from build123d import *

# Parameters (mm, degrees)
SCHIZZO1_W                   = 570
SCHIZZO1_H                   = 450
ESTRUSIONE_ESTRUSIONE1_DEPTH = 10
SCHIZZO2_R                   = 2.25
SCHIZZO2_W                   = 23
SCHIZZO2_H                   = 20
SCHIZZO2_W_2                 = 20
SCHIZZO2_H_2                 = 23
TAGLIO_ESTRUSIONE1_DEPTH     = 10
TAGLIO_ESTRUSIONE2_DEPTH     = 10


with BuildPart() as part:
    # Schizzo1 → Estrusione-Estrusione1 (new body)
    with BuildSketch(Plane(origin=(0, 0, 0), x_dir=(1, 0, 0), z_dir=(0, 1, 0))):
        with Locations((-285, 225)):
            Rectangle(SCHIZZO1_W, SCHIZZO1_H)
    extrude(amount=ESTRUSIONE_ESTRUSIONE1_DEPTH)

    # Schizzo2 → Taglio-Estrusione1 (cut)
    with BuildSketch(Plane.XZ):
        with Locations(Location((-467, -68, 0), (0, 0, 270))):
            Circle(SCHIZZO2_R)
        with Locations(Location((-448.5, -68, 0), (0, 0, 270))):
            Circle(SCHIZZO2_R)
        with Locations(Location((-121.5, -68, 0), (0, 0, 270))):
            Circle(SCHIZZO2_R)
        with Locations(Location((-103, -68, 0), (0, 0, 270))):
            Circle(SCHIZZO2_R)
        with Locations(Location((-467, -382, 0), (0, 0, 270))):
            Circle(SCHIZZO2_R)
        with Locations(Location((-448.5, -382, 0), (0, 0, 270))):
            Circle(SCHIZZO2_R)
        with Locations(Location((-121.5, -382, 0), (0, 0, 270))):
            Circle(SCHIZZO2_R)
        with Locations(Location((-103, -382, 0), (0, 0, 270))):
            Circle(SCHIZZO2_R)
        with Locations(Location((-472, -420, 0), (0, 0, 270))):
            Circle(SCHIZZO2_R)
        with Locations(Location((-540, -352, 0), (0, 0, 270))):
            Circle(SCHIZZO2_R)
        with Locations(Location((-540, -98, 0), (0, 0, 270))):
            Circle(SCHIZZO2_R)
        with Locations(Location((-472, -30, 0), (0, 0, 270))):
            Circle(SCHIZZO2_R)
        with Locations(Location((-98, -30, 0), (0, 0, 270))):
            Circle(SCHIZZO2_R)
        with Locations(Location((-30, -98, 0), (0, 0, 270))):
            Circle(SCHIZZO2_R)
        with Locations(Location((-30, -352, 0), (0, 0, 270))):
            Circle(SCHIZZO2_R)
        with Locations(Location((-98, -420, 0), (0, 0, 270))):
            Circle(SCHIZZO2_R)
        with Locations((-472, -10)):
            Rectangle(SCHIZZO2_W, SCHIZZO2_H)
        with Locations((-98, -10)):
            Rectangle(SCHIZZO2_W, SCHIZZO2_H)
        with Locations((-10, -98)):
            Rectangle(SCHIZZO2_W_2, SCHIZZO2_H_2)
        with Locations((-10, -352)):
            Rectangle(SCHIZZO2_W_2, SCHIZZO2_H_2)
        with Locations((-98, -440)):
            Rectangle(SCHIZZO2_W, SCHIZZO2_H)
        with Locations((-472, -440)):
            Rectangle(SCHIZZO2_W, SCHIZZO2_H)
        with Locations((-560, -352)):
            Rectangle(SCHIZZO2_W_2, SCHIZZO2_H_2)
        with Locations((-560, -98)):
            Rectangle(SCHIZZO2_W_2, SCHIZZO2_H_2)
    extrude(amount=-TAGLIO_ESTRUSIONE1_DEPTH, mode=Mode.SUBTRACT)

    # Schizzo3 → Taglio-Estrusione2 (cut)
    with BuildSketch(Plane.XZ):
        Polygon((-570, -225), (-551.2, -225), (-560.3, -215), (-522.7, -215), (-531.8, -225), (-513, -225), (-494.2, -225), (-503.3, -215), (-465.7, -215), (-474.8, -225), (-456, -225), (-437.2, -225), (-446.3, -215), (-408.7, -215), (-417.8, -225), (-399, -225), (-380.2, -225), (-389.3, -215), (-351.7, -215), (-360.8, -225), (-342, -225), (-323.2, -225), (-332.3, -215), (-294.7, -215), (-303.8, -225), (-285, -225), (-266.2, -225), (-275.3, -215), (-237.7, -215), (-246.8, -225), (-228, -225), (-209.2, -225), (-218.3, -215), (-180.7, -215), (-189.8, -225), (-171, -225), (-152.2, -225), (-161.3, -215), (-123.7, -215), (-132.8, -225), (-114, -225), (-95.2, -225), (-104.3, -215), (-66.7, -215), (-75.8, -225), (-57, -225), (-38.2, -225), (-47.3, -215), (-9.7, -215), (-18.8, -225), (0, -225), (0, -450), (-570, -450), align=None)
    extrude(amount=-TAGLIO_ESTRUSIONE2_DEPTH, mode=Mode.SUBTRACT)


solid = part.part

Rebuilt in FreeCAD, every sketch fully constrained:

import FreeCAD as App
import Part
import Sketcher

doc = App.newDocument("Part")
body = doc.addObject("PartDesign::Body", "Body")

sketch1 = doc.addObject("Sketcher::SketchObject", "Sketch")
body.addObject(sketch1)
sketch1.AttachmentSupport = (doc.XZ_Plane, [""])
sketch1.MapMode = "FlatFace"
sketch1.addGeometry([
    Part.LineSegment(App.Vector(-570, -450, 0), App.Vector(-570, 0, 0)),
    Part.LineSegment(App.Vector(-570, 0, 0), App.Vector(0, 0, 0)),
    Part.LineSegment(App.Vector(0, 0, 0), App.Vector(0, -450, 0)),
    Part.LineSegment(App.Vector(0, -450, 0), App.Vector(-570, -450, 0)),
], False)
sketch1.addConstraint([
    Sketcher.Constraint("Coincident", 0, 2, 1, 1),
    Sketcher.Constraint("Coincident", 1, 2, 2, 1),
    Sketcher.Constraint("Coincident", 2, 2, 3, 1),
    Sketcher.Constraint("Coincident", 3, 2, 0, 1),
    Sketcher.Constraint("Vertical", 0),
    Sketcher.Constraint("Horizontal", 1),
    Sketcher.Constraint("Vertical", 2),
    Sketcher.Constraint("Horizontal", 3),
    Sketcher.Constraint("Coincident", 1, 2, -1, 1),
    Sketcher.Constraint("DistanceX", 1, 1, 1, 2, 570.0),
    Sketcher.Constraint("DistanceY", 0, 1, 0, 2, 450.0),
])
pad1 = doc.addObject("PartDesign::Pad", "Pad")
body.addObject(pad1)
pad1.Profile = sketch1
pad1.Length = 10
pad1.Reversed = True

sketch2 = doc.addObject("Sketcher::SketchObject", "Sketch001")
body.addObject(sketch2)
sketch2.AttachmentSupport = (doc.XZ_Plane, [""])
sketch2.MapMode = "FlatFace"
sketch2.addGeometry([
    Part.Circle(App.Vector(-467, -68, 0), App.Vector(0, 0, 1), 2.25),
    Part.Circle(App.Vector(-448.5, -68, 0), App.Vector(0, 0, 1), 2.25),
    Part.Circle(App.Vector(-121.5, -68, 0), App.Vector(0, 0, 1), 2.25),
    Part.Circle(App.Vector(-103, -68, 0), App.Vector(0, 0, 1), 2.25),
    Part.Circle(App.Vector(-467, -382, 0), App.Vector(0, 0, 1), 2.25),
    Part.Circle(App.Vector(-448.5, -382, 0), App.Vector(0, 0, 1), 2.25),
    Part.Circle(App.Vector(-121.5, -382, 0), App.Vector(0, 0, 1), 2.25),
    Part.Circle(App.Vector(-103, -382, 0), App.Vector(0, 0, 1), 2.25),
    Part.Circle(App.Vector(-472, -420, 0), App.Vector(0, 0, 1), 2.25),
    Part.Circle(App.Vector(-540, -352, 0), App.Vector(0, 0, 1), 2.25),
    Part.Circle(App.Vector(-540, -98, 0), App.Vector(0, 0, 1), 2.25),
    Part.Circle(App.Vector(-472, -30, 0), App.Vector(0, 0, 1), 2.25),
    Part.Circle(App.Vector(-98, -30, 0), App.Vector(0, 0, 1), 2.25),
    Part.Circle(App.Vector(-30, -98, 0), App.Vector(0, 0, 1), 2.25),
    Part.Circle(App.Vector(-30, -352, 0), App.Vector(0, 0, 1), 2.25),
    Part.Circle(App.Vector(-98, -420, 0), App.Vector(0, 0, 1), 2.25),
    Part.LineSegment(App.Vector(-483.5, 0, 0), App.Vector(-483.5, -20, 0)),
    Part.LineSegment(App.Vector(-483.5, -20, 0), App.Vector(-460.5, -20, 0)),
    Part.LineSegment(App.Vector(-460.5, -20, 0), App.Vector(-460.5, 0, 0)),
    Part.LineSegment(App.Vector(-460.5, 0, 0), App.Vector(-483.5, 0, 0)),
    Part.LineSegment(App.Vector(-109.5, 0, 0), App.Vector(-109.5, -20, 0)),
    Part.LineSegment(App.Vector(-109.5, -20, 0), App.Vector(-86.5, -20, 0)),
    Part.LineSegment(App.Vector(-86.5, -20, 0), App.Vector(-86.5, 0, 0)),
    Part.LineSegment(App.Vector(-86.5, 0, 0), App.Vector(-109.5, 0, 0)),
    Part.LineSegment(App.Vector(-20, -86.5, 0), App.Vector(-20, -109.5, 0)),
    Part.LineSegment(App.Vector(-20, -109.5, 0), App.Vector(0, -109.5, 0)),
    Part.LineSegment(App.Vector(0, -109.5, 0), App.Vector(0, -86.5, 0)),
    Part.LineSegment(App.Vector(0, -86.5, 0), App.Vector(-20, -86.5, 0)),
    Part.LineSegment(App.Vector(-20, -340.5, 0), App.Vector(-20, -363.5, 0)),
    Part.LineSegment(App.Vector(-20, -363.5, 0), App.Vector(0, -363.5, 0)),
    Part.LineSegment(App.Vector(0, -363.5, 0), App.Vector(0, -340.5, 0)),
    Part.LineSegment(App.Vector(0, -340.5, 0), App.Vector(-20, -340.5, 0)),
    Part.LineSegment(App.Vector(-109.5, -430, 0), App.Vector(-109.5, -450, 0)),
    Part.LineSegment(App.Vector(-109.5, -450, 0), App.Vector(-86.5, -450, 0)),
    Part.LineSegment(App.Vector(-86.5, -450, 0), App.Vector(-86.5, -430, 0)),
    Part.LineSegment(App.Vector(-86.5, -430, 0), App.Vector(-109.5, -430, 0)),
    Part.LineSegment(App.Vector(-483.5, -430, 0), App.Vector(-483.5, -450, 0)),
    Part.LineSegment(App.Vector(-483.5, -450, 0), App.Vector(-460.5, -450, 0)),
    Part.LineSegment(App.Vector(-460.5, -450, 0), App.Vector(-460.5, -430, 0)),
    Part.LineSegment(App.Vector(-460.5, -430, 0), App.Vector(-483.5, -430, 0)),
    Part.LineSegment(App.Vector(-570, -340.5, 0), App.Vector(-570, -363.5, 0)),
    Part.LineSegment(App.Vector(-570, -363.5, 0), App.Vector(-550, -363.5, 0)),
    Part.LineSegment(App.Vector(-550, -363.5, 0), App.Vector(-550, -340.5, 0)),
    Part.LineSegment(App.Vector(-550, -340.5, 0), App.Vector(-570, -340.5, 0)),
    Part.LineSegment(App.Vector(-570, -86.5, 0), App.Vector(-570, -109.5, 0)),
    Part.LineSegment(App.Vector(-570, -109.5, 0), App.Vector(-550, -109.5, 0)),
    Part.LineSegment(App.Vector(-550, -109.5, 0), App.Vector(-550, -86.5, 0)),
    Part.LineSegment(App.Vector(-550, -86.5, 0), App.Vector(-570, -86.5, 0)),
], False)
sketch2.addConstraint([
    Sketcher.Constraint("Coincident", 16, 2, 17, 1),
    Sketcher.Constraint("Coincident", 17, 2, 18, 1),
    Sketcher.Constraint("Coincident", 18, 2, 19, 1),
    Sketcher.Constraint("Coincident", 19, 2, 16, 1),
    Sketcher.Constraint("Coincident", 20, 2, 21, 1),
    Sketcher.Constraint("Coincident", 21, 2, 22, 1),
    Sketcher.Constraint("Coincident", 22, 2, 23, 1),
    Sketcher.Constraint("Coincident", 23, 2, 20, 1),
    Sketcher.Constraint("Coincident", 24, 2, 25, 1),
    Sketcher.Constraint("Coincident", 25, 2, 26, 1),
    Sketcher.Constraint("Coincident", 26, 2, 27, 1),
    Sketcher.Constraint("Coincident", 27, 2, 24, 1),
    Sketcher.Constraint("Coincident", 28, 2, 29, 1),
    Sketcher.Constraint("Coincident", 29, 2, 30, 1),
    Sketcher.Constraint("Coincident", 30, 2, 31, 1),
    Sketcher.Constraint("Coincident", 31, 2, 28, 1),
    Sketcher.Constraint("Coincident", 32, 2, 33, 1),
    Sketcher.Constraint("Coincident", 33, 2, 34, 1),
    Sketcher.Constraint("Coincident", 34, 2, 35, 1),
    Sketcher.Constraint("Coincident", 35, 2, 32, 1),
    Sketcher.Constraint("Coincident", 36, 2, 37, 1),
    Sketcher.Constraint("Coincident", 37, 2, 38, 1),
    Sketcher.Constraint("Coincident", 38, 2, 39, 1),
    Sketcher.Constraint("Coincident", 39, 2, 36, 1),
    Sketcher.Constraint("Coincident", 40, 2, 41, 1),
    Sketcher.Constraint("Coincident", 41, 2, 42, 1),
    Sketcher.Constraint("Coincident", 42, 2, 43, 1),
    Sketcher.Constraint("Coincident", 43, 2, 40, 1),
    Sketcher.Constraint("Coincident", 44, 2, 45, 1),
    Sketcher.Constraint("Coincident", 45, 2, 46, 1),
    Sketcher.Constraint("Coincident", 46, 2, 47, 1),
    Sketcher.Constraint("Coincident", 47, 2, 44, 1),
    Sketcher.Constraint("Vertical", 16),
    Sketcher.Constraint("Horizontal", 17),
    Sketcher.Constraint("Vertical", 18),
    Sketcher.Constraint("Horizontal", 19),
    Sketcher.Constraint("Vertical", 20),
    Sketcher.Constraint("Horizontal", 21),
    Sketcher.Constraint("Vertical", 22),
    Sketcher.Constraint("Horizontal", 23),
    Sketcher.Constraint("Vertical", 24),
    Sketcher.Constraint("Horizontal", 25),
    Sketcher.Constraint("Vertical", 26),
    Sketcher.Constraint("Horizontal", 27),
    Sketcher.Constraint("Vertical", 28),
    Sketcher.Constraint("Horizontal", 29),
    Sketcher.Constraint("Vertical", 30),
    Sketcher.Constraint("Horizontal", 31),
    Sketcher.Constraint("Vertical", 32),
    Sketcher.Constraint("Horizontal", 33),
    Sketcher.Constraint("Vertical", 34),
    Sketcher.Constraint("Horizontal", 35),
    Sketcher.Constraint("Vertical", 36),
    Sketcher.Constraint("Horizontal", 37),
    Sketcher.Constraint("Vertical", 38),
    Sketcher.Constraint("Horizontal", 39),
    Sketcher.Constraint("Vertical", 40),
    Sketcher.Constraint("Horizontal", 41),
    Sketcher.Constraint("Vertical", 42),
    Sketcher.Constraint("Horizontal", 43),
    Sketcher.Constraint("Vertical", 44),
    Sketcher.Constraint("Horizontal", 45),
    Sketcher.Constraint("Vertical", 46),
    Sketcher.Constraint("Horizontal", 47),
    Sketcher.Constraint("Equal", 0, 1),
    Sketcher.Constraint("Equal", 1, 2),
    Sketcher.Constraint("Equal", 2, 3),
    Sketcher.Constraint("Equal", 3, 4),
    Sketcher.Constraint("Equal", 4, 5),
    Sketcher.Constraint("Equal", 5, 6),
    Sketcher.Constraint("Equal", 6, 7),
    Sketcher.Constraint("Equal", 7, 8),
    Sketcher.Constraint("Equal", 8, 9),
    Sketcher.Constraint("Equal", 9, 10),
    Sketcher.Constraint("Equal", 10, 11),
    Sketcher.Constraint("Equal", 11, 12),
    Sketcher.Constraint("Equal", 12, 13),
    Sketcher.Constraint("Equal", 13, 14),
    Sketcher.Constraint("Equal", 14, 15),
    Sketcher.Constraint("PointOnObject", 18, 2, -1),
    Sketcher.Constraint("PointOnObject", 22, 2, -1),
    Sketcher.Constraint("PointOnObject", 25, 2, -2),
    Sketcher.Constraint("PointOnObject", 29, 2, -2),
    Sketcher.Constraint("Horizontal", 0, 3, 1, 3),
    Sketcher.Constraint("Horizontal", 1, 3, 2, 3),
    Sketcher.Constraint("Horizontal", 2, 3, 3, 3),
    Sketcher.Constraint("Horizontal", 4, 3, 5, 3),
    Sketcher.Constraint("Horizontal", 5, 3, 6, 3),
    Sketcher.Constraint("Horizontal", 6, 3, 7, 3),
    Sketcher.Constraint("Horizontal", 11, 3, 12, 3),
    Sketcher.Constraint("Horizontal", 10, 3, 13, 3),
    Sketcher.Constraint("Horizontal", 9, 3, 14, 3),
    Sketcher.Constraint("Horizontal", 8, 3, 15, 3),
    Sketcher.Constraint("Horizontal", 17, 2, 20, 2),
    Sketcher.Constraint("Horizontal", 33, 2, 36, 2),
    Sketcher.Constraint("Horizontal", 35, 2, 38, 2),
    Sketcher.Constraint("Horizontal", 29, 2, 40, 2),
    Sketcher.Constraint("Horizontal", 31, 2, 42, 2),
    Sketcher.Constraint("Horizontal", 25, 2, 44, 2),
    Sketcher.Constraint("Horizontal", 27, 2, 46, 2),
    Sketcher.Constraint("Vertical", 0, 3, 4, 3),
    Sketcher.Constraint("Vertical", 1, 3, 5, 3),
    Sketcher.Constraint("Vertical", 2, 3, 6, 3),
    Sketcher.Constraint("Vertical", 3, 3, 7, 3),
    Sketcher.Constraint("Vertical", 9, 3, 10, 3),
    Sketcher.Constraint("Vertical", 8, 3, 11, 3),
    Sketcher.Constraint("Vertical", 13, 3, 14, 3),
    Sketcher.Constraint("Vertical", 12, 3, 15, 3),
    Sketcher.Constraint("Vertical", 27, 2, 28, 2),
    Sketcher.Constraint("Vertical", 23, 2, 32, 2),
    Sketcher.Constraint("Vertical", 22, 2, 33, 2),
    Sketcher.Constraint("Vertical", 19, 2, 36, 2),
    Sketcher.Constraint("Vertical", 18, 2, 37, 2),
    Sketcher.Constraint("Vertical", 43, 2, 44, 2),
    Sketcher.Constraint("Vertical", 42, 2, 45, 2),
    Sketcher.Constraint("Equal", 19, 21),
    Sketcher.Constraint("Equal", 31, 41),
    Sketcher.Constraint("Equal", 47, 16),
    Sketcher.Constraint("Equal", 39, 24),
    Sketcher.Constraint("Equal", 26, 28),
    Sketcher.Constraint("Equal", 22, 32),
    Sketcher.Constraint("Diameter", 0, 4.5),
    Sketcher.Constraint("DistanceX", 17, 1, 17, 2, 23.0),
    Sketcher.Constraint("DistanceX", 25, 1, 25, 2, 20.0),
    Sketcher.Constraint("DistanceX", 0, 3, -1, 1, 467.0),
    Sketcher.Constraint("DistanceY", 0, 3, -1, 1, 68.0),
    Sketcher.Constraint("DistanceX", 3, 3, -1, 1, 103.0),
    Sketcher.Constraint("DistanceY", 4, 3, -1, 1, 382.0),
    Sketcher.Constraint("DistanceX", 8, 3, -1, 1, 472.0),
    Sketcher.Constraint("DistanceY", 8, 3, -1, 1, 420.0),
    Sketcher.Constraint("DistanceX", 9, 3, -1, 1, 540.0),
    Sketcher.Constraint("DistanceY", 9, 3, -1, 1, 352.0),
    Sketcher.Constraint("DistanceY", 10, 3, -1, 1, 98.0),
    Sketcher.Constraint("DistanceY", 11, 3, -1, 1, 30.0),
    Sketcher.Constraint("DistanceX", 12, 3, -1, 1, 98.0),
    Sketcher.Constraint("DistanceX", 13, 3, -1, 1, 30.0),
    Sketcher.Constraint("DistanceY", 32, 2, -1, 1, 450.0),
    Sketcher.Constraint("DistanceX", 40, 2, -1, 1, 570.0),
    Sketcher.Constraint("DistanceX", 1, 3, 2, 3, 327.0),
    Sketcher.Constraint("DistanceX", 16, 2, 1, 3, 35.0),
    Sketcher.Constraint("DistanceX", 2, 3, 20, 2, 12.0),
    Sketcher.Constraint("DistanceY", 28, 2, 24, 2, 254.0),
    Sketcher.Constraint("DistanceX", 1, 3, -1, 1, 448.5),
    Sketcher.Constraint("DistanceY", 24, 2, -1, 1, 109.5),
])
pocket1 = doc.addObject("PartDesign::Pocket", "Pocket")
body.addObject(pocket1)
pocket1.Profile = sketch2
pocket1.Length = 10

sketch3 = doc.addObject("Sketcher::SketchObject", "Sketch002")
body.addObject(sketch3)
sketch3.AttachmentSupport = (doc.XZ_Plane, [""])
sketch3.MapMode = "FlatFace"
sketch3.addGeometry([
    Part.LineSegment(App.Vector(-551.2, -225, 0), App.Vector(-570, -225, 0)),
    Part.LineSegment(App.Vector(-570, -225, 0), App.Vector(-570, -450, 0)),
    Part.LineSegment(App.Vector(-570, -450, 0), App.Vector(0, -450, 0)),
    Part.LineSegment(App.Vector(0, -450, 0), App.Vector(0, -225, 0)),
    Part.LineSegment(App.Vector(0, -225, 0), App.Vector(-18.8, -225, 0)),
    Part.LineSegment(App.Vector(-18.8, -225, 0), App.Vector(-9.7, -215, 0)),
    Part.LineSegment(App.Vector(-9.7, -215, 0), App.Vector(-47.3, -215, 0)),
    Part.LineSegment(App.Vector(-47.3, -215, 0), App.Vector(-38.2, -225, 0)),
    Part.LineSegment(App.Vector(-38.2, -225, 0), App.Vector(-75.8, -225, 0)),
    Part.LineSegment(App.Vector(-75.8, -225, 0), App.Vector(-66.7, -215, 0)),
    Part.LineSegment(App.Vector(-66.7, -215, 0), App.Vector(-104.3, -215, 0)),
    Part.LineSegment(App.Vector(-104.3, -215, 0), App.Vector(-95.2, -225, 0)),
    Part.LineSegment(App.Vector(-95.2, -225, 0), App.Vector(-132.8, -225, 0)),
    Part.LineSegment(App.Vector(-132.8, -225, 0), App.Vector(-123.7, -215, 0)),
    Part.LineSegment(App.Vector(-123.7, -215, 0), App.Vector(-161.3, -215, 0)),
    Part.LineSegment(App.Vector(-161.3, -215, 0), App.Vector(-152.2, -225, 0)),
    Part.LineSegment(App.Vector(-152.2, -225, 0), App.Vector(-189.8, -225, 0)),
    Part.LineSegment(App.Vector(-189.8, -225, 0), App.Vector(-180.7, -215, 0)),
    Part.LineSegment(App.Vector(-180.7, -215, 0), App.Vector(-218.3, -215, 0)),
    Part.LineSegment(App.Vector(-218.3, -215, 0), App.Vector(-209.2, -225, 0)),
    Part.LineSegment(App.Vector(-209.2, -225, 0), App.Vector(-246.8, -225, 0)),
    Part.LineSegment(App.Vector(-246.8, -225, 0), App.Vector(-237.7, -215, 0)),
    Part.LineSegment(App.Vector(-237.7, -215, 0), App.Vector(-275.3, -215, 0)),
    Part.LineSegment(App.Vector(-275.3, -215, 0), App.Vector(-266.2, -225, 0)),
    Part.LineSegment(App.Vector(-266.2, -225, 0), App.Vector(-303.8, -225, 0)),
    Part.LineSegment(App.Vector(-303.8, -225, 0), App.Vector(-294.7, -215, 0)),
    Part.LineSegment(App.Vector(-294.7, -215, 0), App.Vector(-332.3, -215, 0)),
    Part.LineSegment(App.Vector(-332.3, -215, 0), App.Vector(-323.2, -225, 0)),
    Part.LineSegment(App.Vector(-323.2, -225, 0), App.Vector(-360.8, -225, 0)),
    Part.LineSegment(App.Vector(-360.8, -225, 0), App.Vector(-351.7, -215, 0)),
    Part.LineSegment(App.Vector(-351.7, -215, 0), App.Vector(-389.3, -215, 0)),
    Part.LineSegment(App.Vector(-389.3, -215, 0), App.Vector(-380.2, -225, 0)),
    Part.LineSegment(App.Vector(-380.2, -225, 0), App.Vector(-417.8, -225, 0)),
    Part.LineSegment(App.Vector(-417.8, -225, 0), App.Vector(-408.7, -215, 0)),
    Part.LineSegment(App.Vector(-408.7, -215, 0), App.Vector(-446.3, -215, 0)),
    Part.LineSegment(App.Vector(-446.3, -215, 0), App.Vector(-437.2, -225, 0)),
    Part.LineSegment(App.Vector(-437.2, -225, 0), App.Vector(-474.8, -225, 0)),
    Part.LineSegment(App.Vector(-474.8, -225, 0), App.Vector(-465.7, -215, 0)),
    Part.LineSegment(App.Vector(-465.7, -215, 0), App.Vector(-503.3, -215, 0)),
    Part.LineSegment(App.Vector(-503.3, -215, 0), App.Vector(-494.2, -225, 0)),
    Part.LineSegment(App.Vector(-494.2, -225, 0), App.Vector(-531.8, -225, 0)),
    Part.LineSegment(App.Vector(-531.8, -225, 0), App.Vector(-522.7, -215, 0)),
    Part.LineSegment(App.Vector(-522.7, -215, 0), App.Vector(-560.3, -215, 0)),
    Part.LineSegment(App.Vector(-560.3, -215, 0), App.Vector(-551.2, -225, 0)),
], False)
sketch3.addConstraint([
    Sketcher.Constraint("Coincident", 0, 2, 1, 1),
    Sketcher.Constraint("Coincident", 1, 2, 2, 1),
    Sketcher.Constraint("Coincident", 2, 2, 3, 1),
    Sketcher.Constraint("Coincident", 3, 2, 4, 1),
    Sketcher.Constraint("Coincident", 4, 2, 5, 1),
    Sketcher.Constraint("Coincident", 5, 2, 6, 1),
    Sketcher.Constraint("Coincident", 6, 2, 7, 1),
    Sketcher.Constraint("Coincident", 7, 2, 8, 1),
    Sketcher.Constraint("Coincident", 8, 2, 9, 1),
    Sketcher.Constraint("Coincident", 9, 2, 10, 1),
    Sketcher.Constraint("Coincident", 10, 2, 11, 1),
    Sketcher.Constraint("Coincident", 11, 2, 12, 1),
    Sketcher.Constraint("Coincident", 12, 2, 13, 1),
    Sketcher.Constraint("Coincident", 13, 2, 14, 1),
    Sketcher.Constraint("Coincident", 14, 2, 15, 1),
    Sketcher.Constraint("Coincident", 15, 2, 16, 1),
    Sketcher.Constraint("Coincident", 16, 2, 17, 1),
    Sketcher.Constraint("Coincident", 17, 2, 18, 1),
    Sketcher.Constraint("Coincident", 18, 2, 19, 1),
    Sketcher.Constraint("Coincident", 19, 2, 20, 1),
    Sketcher.Constraint("Coincident", 20, 2, 21, 1),
    Sketcher.Constraint("Coincident", 21, 2, 22, 1),
    Sketcher.Constraint("Coincident", 22, 2, 23, 1),
    Sketcher.Constraint("Coincident", 23, 2, 24, 1),
    Sketcher.Constraint("Coincident", 24, 2, 25, 1),
    Sketcher.Constraint("Coincident", 25, 2, 26, 1),
    Sketcher.Constraint("Coincident", 26, 2, 27, 1),
    Sketcher.Constraint("Coincident", 27, 2, 28, 1),
    Sketcher.Constraint("Coincident", 28, 2, 29, 1),
    Sketcher.Constraint("Coincident", 29, 2, 30, 1),
    Sketcher.Constraint("Coincident", 30, 2, 31, 1),
    Sketcher.Constraint("Coincident", 31, 2, 32, 1),
    Sketcher.Constraint("Coincident", 32, 2, 33, 1),
    Sketcher.Constraint("Coincident", 33, 2, 34, 1),
    Sketcher.Constraint("Coincident", 34, 2, 35, 1),
    Sketcher.Constraint("Coincident", 35, 2, 36, 1),
    Sketcher.Constraint("Coincident", 36, 2, 37, 1),
    Sketcher.Constraint("Coincident", 37, 2, 38, 1),
    Sketcher.Constraint("Coincident", 38, 2, 39, 1),
    Sketcher.Constraint("Coincident", 39, 2, 40, 1),
    Sketcher.Constraint("Coincident", 40, 2, 41, 1),
    Sketcher.Constraint("Coincident", 41, 2, 42, 1),
    Sketcher.Constraint("Coincident", 42, 2, 43, 1),
    Sketcher.Constraint("Coincident", 43, 2, 0, 1),
    Sketcher.Constraint("Horizontal", 0),
    Sketcher.Constraint("Vertical", 1),
    Sketcher.Constraint("Horizontal", 2),
    Sketcher.Constraint("Vertical", 3),
    Sketcher.Constraint("Horizontal", 4),
    Sketcher.Constraint("Horizontal", 6),
    Sketcher.Constraint("Horizontal", 8),
    Sketcher.Constraint("Horizontal", 10),
    Sketcher.Constraint("Horizontal", 12),
    Sketcher.Constraint("Horizontal", 14),
    Sketcher.Constraint("Horizontal", 16),
    Sketcher.Constraint("Horizontal", 18),
    Sketcher.Constraint("Horizontal", 20),
    Sketcher.Constraint("Horizontal", 22),
    Sketcher.Constraint("Horizontal", 24),
    Sketcher.Constraint("Horizontal", 26),
    Sketcher.Constraint("Horizontal", 28),
    Sketcher.Constraint("Horizontal", 30),
    Sketcher.Constraint("Horizontal", 32),
    Sketcher.Constraint("Horizontal", 34),
    Sketcher.Constraint("Horizontal", 36),
    Sketcher.Constraint("Horizontal", 38),
    Sketcher.Constraint("Horizontal", 40),
    Sketcher.Constraint("Horizontal", 42),
    Sketcher.Constraint("PointOnObject", 2, 2, -2),
    Sketcher.Constraint("Parallel", 5, 9),
    Sketcher.Constraint("Parallel", 7, 11),
    Sketcher.Constraint("Parallel", 9, 13),
    Sketcher.Constraint("Parallel", 11, 15),
    Sketcher.Constraint("Parallel", 13, 17),
    Sketcher.Constraint("Parallel", 15, 19),
    Sketcher.Constraint("Parallel", 17, 21),
    Sketcher.Constraint("Parallel", 19, 23),
    Sketcher.Constraint("Parallel", 21, 25),
    Sketcher.Constraint("Parallel", 23, 27),
    Sketcher.Constraint("Parallel", 25, 29),
    Sketcher.Constraint("Parallel", 27, 31),
    Sketcher.Constraint("Parallel", 29, 33),
    Sketcher.Constraint("Parallel", 31, 35),
    Sketcher.Constraint("Parallel", 33, 37),
    Sketcher.Constraint("Parallel", 35, 39),
    Sketcher.Constraint("Parallel", 37, 41),
    Sketcher.Constraint("Parallel", 39, 43),
    Sketcher.Constraint("Horizontal", 0, 2, 3, 2),
    Sketcher.Constraint("Horizontal", 4, 2, 7, 2),
    Sketcher.Constraint("Horizontal", 6, 2, 9, 2),
    Sketcher.Constraint("Horizontal", 8, 2, 11, 2),
    Sketcher.Constraint("Horizontal", 10, 2, 13, 2),
    Sketcher.Constraint("Horizontal", 12, 2, 15, 2),
    Sketcher.Constraint("Horizontal", 14, 2, 17, 2),
    Sketcher.Constraint("Horizontal", 16, 2, 19, 2),
    Sketcher.Constraint("Horizontal", 18, 2, 21, 2),
    Sketcher.Constraint("Horizontal", 20, 2, 23, 2),
    Sketcher.Constraint("Horizontal", 22, 2, 25, 2),
    Sketcher.Constraint("Horizontal", 24, 2, 27, 2),
    Sketcher.Constraint("Horizontal", 26, 2, 29, 2),
    Sketcher.Constraint("Horizontal", 28, 2, 31, 2),
    Sketcher.Constraint("Horizontal", 30, 2, 33, 2),
    Sketcher.Constraint("Horizontal", 32, 2, 35, 2),
    Sketcher.Constraint("Horizontal", 34, 2, 37, 2),
    Sketcher.Constraint("Horizontal", 36, 2, 39, 2),
    Sketcher.Constraint("Horizontal", 38, 2, 41, 2),
    Sketcher.Constraint("Equal", 0, 4),
    Sketcher.Constraint("Equal", 6, 8),
    Sketcher.Constraint("Equal", 8, 10),
    Sketcher.Constraint("Equal", 10, 12),
    Sketcher.Constraint("Equal", 12, 14),
    Sketcher.Constraint("Equal", 14, 16),
    Sketcher.Constraint("Equal", 16, 18),
    Sketcher.Constraint("Equal", 18, 20),
    Sketcher.Constraint("Equal", 20, 22),
    Sketcher.Constraint("Equal", 22, 24),
    Sketcher.Constraint("Equal", 24, 26),
    Sketcher.Constraint("Equal", 26, 28),
    Sketcher.Constraint("Equal", 28, 30),
    Sketcher.Constraint("Equal", 30, 32),
    Sketcher.Constraint("Equal", 32, 34),
    Sketcher.Constraint("Equal", 34, 36),
    Sketcher.Constraint("Equal", 36, 38),
    Sketcher.Constraint("Equal", 38, 40),
    Sketcher.Constraint("Equal", 40, 42),
    Sketcher.Constraint("Equal", 5, 7),
    Sketcher.Constraint("DistanceX", 2, 1, 2, 2, 570.0),
    Sketcher.Constraint("DistanceY", 1, 2, 1, 1, 225.0),
    Sketcher.Constraint("DistanceX", 0, 2, 0, 1, 18.8),
    Sketcher.Constraint("DistanceX", 6, 2, 6, 1, 37.6),
    Sketcher.Constraint("DistanceY", 0, 2, -1, 1, 225.0),
    Sketcher.Constraint("DistanceY", 5, 2, -1, 1, 215.0),
])
pocket2 = doc.addObject("PartDesign::Pocket", "Pocket001")
body.addObject(pocket2)
pocket2.Profile = sketch3
pocket2.Length = 10

doc.recompute()
